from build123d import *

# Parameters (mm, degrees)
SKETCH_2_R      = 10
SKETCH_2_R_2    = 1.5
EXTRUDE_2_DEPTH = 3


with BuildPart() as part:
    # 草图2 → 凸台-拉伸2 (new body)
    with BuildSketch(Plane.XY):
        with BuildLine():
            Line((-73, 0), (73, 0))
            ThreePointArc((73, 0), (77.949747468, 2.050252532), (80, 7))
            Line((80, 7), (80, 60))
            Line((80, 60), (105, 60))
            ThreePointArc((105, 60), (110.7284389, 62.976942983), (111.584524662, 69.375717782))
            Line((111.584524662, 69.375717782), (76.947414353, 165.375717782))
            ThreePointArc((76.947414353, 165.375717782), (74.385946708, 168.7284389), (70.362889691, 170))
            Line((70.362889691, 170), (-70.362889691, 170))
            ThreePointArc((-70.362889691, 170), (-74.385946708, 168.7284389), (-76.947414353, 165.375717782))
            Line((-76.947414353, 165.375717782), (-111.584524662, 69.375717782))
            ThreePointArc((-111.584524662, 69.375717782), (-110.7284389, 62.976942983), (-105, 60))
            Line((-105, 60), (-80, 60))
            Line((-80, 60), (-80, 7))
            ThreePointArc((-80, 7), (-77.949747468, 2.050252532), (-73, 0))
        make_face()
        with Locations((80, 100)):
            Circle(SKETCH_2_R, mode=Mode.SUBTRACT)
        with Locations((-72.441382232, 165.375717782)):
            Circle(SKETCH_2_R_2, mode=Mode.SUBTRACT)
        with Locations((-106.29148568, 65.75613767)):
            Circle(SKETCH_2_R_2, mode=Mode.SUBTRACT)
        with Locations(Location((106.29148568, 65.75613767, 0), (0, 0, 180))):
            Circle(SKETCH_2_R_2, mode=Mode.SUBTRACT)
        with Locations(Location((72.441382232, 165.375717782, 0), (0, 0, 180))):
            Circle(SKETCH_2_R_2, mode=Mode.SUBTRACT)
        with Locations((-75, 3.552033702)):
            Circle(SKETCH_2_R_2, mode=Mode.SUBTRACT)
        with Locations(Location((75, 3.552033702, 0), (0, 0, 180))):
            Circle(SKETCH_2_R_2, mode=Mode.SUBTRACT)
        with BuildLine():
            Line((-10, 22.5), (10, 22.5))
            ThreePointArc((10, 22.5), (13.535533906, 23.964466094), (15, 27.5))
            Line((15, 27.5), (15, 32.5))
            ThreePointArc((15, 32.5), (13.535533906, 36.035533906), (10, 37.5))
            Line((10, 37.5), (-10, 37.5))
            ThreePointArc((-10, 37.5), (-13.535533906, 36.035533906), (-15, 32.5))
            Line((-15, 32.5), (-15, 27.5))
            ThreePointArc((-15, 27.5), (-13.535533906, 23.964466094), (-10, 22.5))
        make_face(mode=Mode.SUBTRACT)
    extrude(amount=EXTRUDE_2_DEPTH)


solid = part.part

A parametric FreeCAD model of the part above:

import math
import FreeCAD as App
import Part
import Sketcher
from FreeCAD import Vector
Q = App.Units.Quantity

doc = App.newDocument("Part")
body = doc.addObject("PartDesign::Body", "Body")

# Sketch on XY plane
sketch1 = body.newObject("Sketcher::SketchObject", "Sketch")
sketch1.AttachmentSupport = (doc.getObject("XY_Plane"), [""])
sketch1.MapMode = "FlatFace"
sketch1.addGeometry(Part.LineSegment(Vector(-73, 0, 0), Vector(73, 0, 0)), False)
sketch1.addGeometry(Part.ArcOfCircle(Part.Circle(Vector(73, 7, 0), Vector(0, 0, 1), 7), math.radians(-90), math.radians(0)), False)
sketch1.addGeometry(Part.LineSegment(Vector(80, 7, 0), Vector(80, 60, 0)), False)
sketch1.addGeometry(Part.LineSegment(Vector(80, 60, 0), Vector(105, 60, 0)), False)
sketch1.addGeometry(Part.ArcOfCircle(Part.Circle(Vector(105, 67, 0), Vector(0, 0, 1), 7), math.radians(-90), math.radians(20)), False)
sketch1.addGeometry(Part.LineSegment(Vector(111.6, 69.4, 0), Vector(76.9, 165.4, 0)), False)
sketch1.addGeometry(Part.ArcOfCircle(Part.Circle(Vector(70.4, 163, 0), Vector(0, 0, 1), 7), math.radians(20), math.radians(90)), False)
sketch1.addGeometry(Part.LineSegment(Vector(70.4, 170, 0), Vector(-70.4, 170, 0)), False)
sketch1.addGeometry(Part.ArcOfCircle(Part.Circle(Vector(-70.4, 163, 0), Vector(0, 0, 1), 7), math.radians(90), math.radians(160)), False)
sketch1.addGeometry(Part.LineSegment(Vector(-76.9, 165.4, 0), Vector(-111.6, 69.4, 0)), False)
sketch1.addGeometry(Part.ArcOfCircle(Part.Circle(Vector(-105, 67, 0), Vector(0, 0, 1), 7), math.radians(160), math.radians(270)), False)
sketch1.addGeometry(Part.LineSegment(Vector(-105, 60, 0), Vector(-80, 60, 0)), False)
sketch1.addGeometry(Part.LineSegment(Vector(-80, 60, 0), Vector(-80, 7, 0)), False)
sketch1.addGeometry(Part.ArcOfCircle(Part.Circle(Vector(-73, 7, 0), Vector(0, 0, 1), 7), math.radians(-180), math.radians(-90)), False)
sketch1.addGeometry(Part.Circle(Vector(-75, 3.6, 0), Vector(0, 0, 1), 1.5), False)
sketch1.addGeometry(Part.Circle(Vector(-106.3, 65.8, 0), Vector(0, 0, 1), 1.5), False)
sketch1.addGeometry(Part.LineSegment(Vector(10, 22.5, 0), Vector(-10, 22.5, 0)), False)
sketch1.addGeometry(Part.ArcOfCircle(Part.Circle(Vector(-10, 27.5, 0), Vector(0, 0, 1), 5), math.radians(180), math.radians(270)), False)
sketch1.addGeometry(Part.LineSegment(Vector(-15, 27.5, 0), Vector(-15, 32.5, 0)), False)
sketch1.addGeometry(Part.ArcOfCircle(Part.Circle(Vector(-10, 32.5, 0), Vector(0, 0, 1), 5), math.radians(90), math.radians(180)), False)
sketch1.addGeometry(Part.LineSegment(Vector(-10, 37.5, 0), Vector(10, 37.5, 0)), False)
sketch1.addGeometry(Part.ArcOfCircle(Part.Circle(Vector(10, 32.5, 0), Vector(0, 0, 1), 5), math.radians(0), math.radians(90)), False)
sketch1.addGeometry(Part.LineSegment(Vector(15, 32.5, 0), Vector(15, 27.5, 0)), False)
sketch1.addGeometry(Part.ArcOfCircle(Part.Circle(Vector(10, 27.5, 0), Vector(0, 0, 1), 5), math.radians(-90), math.radians(0)), False)
sketch1.addGeometry(Part.Circle(Vector(75, 3.6, 0), Vector(0, 0, 1), 1.5), False)
sketch1.addGeometry(Part.Circle(Vector(106.3, 65.8, 0), Vector(0, 0, 1), 1.5), False)
sketch1.addGeometry(Part.Circle(Vector(-72.4, 165.4, 0), Vector(0, 0, 1), 1.5), False)
sketch1.addGeometry(Part.Circle(Vector(80, 100, 0), Vector(0, 0, 1), 10), False)
sketch1.addGeometry(Part.Circle(Vector(72.4, 165.4, 0), Vector(0, 0, 1), 1.5), False)
sketch1.addConstraint(Sketcher.Constraint("Tangent", 0, 2, 1, 1))
sketch1.addConstraint(Sketcher.Constraint("Tangent", 1, 2, 2, 1))
sketch1.addConstraint(Sketcher.Constraint("Coincident", 2, 2, 3, 1))
sketch1.addConstraint(Sketcher.Constraint("Tangent", 3, 2, 4, 1))
sketch1.addConstraint(Sketcher.Constraint("Tangent", 4, 2, 5, 1))
sketch1.addConstraint(Sketcher.Constraint("Tangent", 5, 2, 6, 1))
sketch1.addConstraint(Sketcher.Constraint("Tangent", 6, 2, 7, 1))
sketch1.addConstraint(Sketcher.Constraint("Tangent", 7, 2, 8, 1))
sketch1.addConstraint(Sketcher.Constraint("Tangent", 8, 2, 9, 1))
sketch1.addConstraint(Sketcher.Constraint("Tangent", 9, 2, 10, 1))
sketch1.addConstraint(Sketcher.Constraint("Tangent", 10, 2, 11, 1))
sketch1.addConstraint(Sketcher.Constraint("Coincident", 11, 2, 12, 1))
sketch1.addConstraint(Sketcher.Constraint("Tangent", 12, 2, 13, 1))
sketch1.addConstraint(Sketcher.Constraint("Tangent", 13, 2, 0, 1))
sketch1.addConstraint(Sketcher.Constraint("Tangent", 16, 2, 17, 2))
sketch1.addConstraint(Sketcher.Constraint("Tangent", 17, 1, 18, 1))
sketch1.addConstraint(Sketcher.Constraint("Tangent", 18, 2, 19, 2))
sketch1.addConstraint(Sketcher.Constraint("Tangent", 19, 1, 20, 1))
sketch1.addConstraint(Sketcher.Constraint("Tangent", 20, 2, 21, 2))
sketch1.addConstraint(Sketcher.Constraint("Tangent", 21, 1, 22, 1))
sketch1.addConstraint(Sketcher.Constraint("Tangent", 22, 2, 23, 2))
sketch1.addConstraint(Sketcher.Constraint("Tangent", 23, 1, 16, 1))
sketch1.addConstraint(Sketcher.Constraint("Horizontal", 0))
sketch1.addConstraint(Sketcher.Constraint("Vertical", 2))
sketch1.addConstraint(Sketcher.Constraint("Horizontal", 3))
sketch1.addConstraint(Sketcher.Constraint("Horizontal", 7))
sketch1.addConstraint(Sketcher.Constraint("Horizontal", 11))
sketch1.addConstraint(Sketcher.Constraint("Vertical", 12))
sketch1.addConstraint(Sketcher.Constraint("Horizontal", 16))
sketch1.addConstraint(Sketcher.Constraint("Vertical", 18))
sketch1.addConstraint(Sketcher.Constraint("Horizontal", 20))
sketch1.addConstraint(Sketcher.Constraint("Vertical", 22))
sketch1.addConstraint(Sketcher.Constraint("Equal", 1, 4))
sketch1.addConstraint(Sketcher.Constraint("Equal", 4, 6))
sketch1.addConstraint(Sketcher.Constraint("Equal", 6, 8))
sketch1.addConstraint(Sketcher.Constraint("Equal", 8, 10))
sketch1.addConstraint(Sketcher.Constraint("Equal", 10, 13))
sketch1.addConstraint(Sketcher.Constraint("Equal", 14, 15))
sketch1.addConstraint(Sketcher.Constraint("Equal", 17, 19))
sketch1.addConstraint(Sketcher.Constraint("Equal", 19, 21))
sketch1.addConstraint(Sketcher.Constraint("Equal", 21, 23))
sketch1.addConstraint(Sketcher.Constraint("Equal", 15, 24))
sketch1.addConstraint(Sketcher.Constraint("Equal", 24, 25))
sketch1.addConstraint(Sketcher.Constraint("Equal", 25, 26))
sketch1.addConstraint(Sketcher.Constraint("Equal", 26, 28))
sketch1.addConstraint(Sketcher.Constraint("Symmetric", 0, 2, 13, 2, -1, 1))
sketch1.addConstraint(Sketcher.Constraint("Symmetric", 4, 3, 10, 3, -2))
sketch1.addConstraint(Sketcher.Constraint("Symmetric", 14, 3, 24, 3, -2))
sketch1.addConstraint(Sketcher.Constraint("Symmetric", 15, 3, 25, 3, -2))
sketch1.addConstraint(Sketcher.Constraint("Symmetric", 26, 3, 28, 3, -2))
sketch1.addConstraint(Sketcher.Constraint("Horizontal", 28, 3, 5, 2))
sketch1.addConstraint(Sketcher.Constraint("Horizontal", 5, 2, 8, 2))
sketch1.addConstraint(Sketcher.Constraint("Vertical", 27, 3, 1, 2))
sketch1.addConstraint(Sketcher.Constraint("Diameter", 14, Q("3 mm")))
sketch1.addConstraint(Sketcher.Constraint("Diameter", 27, Q("20 mm")))
sketch1.addConstraint(Sketcher.Constraint("Radius", 1, Q("7 mm")))
sketch1.addConstraint(Sketcher.Constraint("Radius", 17, Q("5 mm")))
sketch1.addConstraint(Sketcher.Constraint("DistanceX", 0, 1, 0, 2, Q("146 mm")))
sketch1.addConstraint(Sketcher.Constraint("DistanceX", 3, 1, 3, 2, Q("25 mm")))
sketch1.addConstraint(Sketcher.Constraint("DistanceX", 16, 2, 16, 1, Q("20 mm")))
sketch1.addConstraint(Sketcher.Constraint("DistanceY", 2, 1, 2, 2, Q("53 mm")))
sketch1.addConstraint(Sketcher.Constraint("DistanceY", 18, 1, 18, 2, Q("5 mm")))
sketch1.addConstraint(Sketcher.Constraint("DistanceY", -1, 1, 6, 3, Q("163 mm")))
sketch1.addConstraint(Sketcher.Constraint("DistanceX", 14, 3, -1, 1, Q("75 mm")))
sketch1.addConstraint(Sketcher.Constraint("DistanceX", 17, 3, -1, 1, Q("10 mm")))
sketch1.addConstraint(Sketcher.Constraint("DistanceY", -1, 1, 27, 3, Q("100 mm")))
sketch1.addConstraint(Sketcher.Constraint("DistanceY", -1, 1, 17, 3, Q("27.5 mm")))
sketch1.addConstraint(Sketcher.Constraint("DistanceX", 7, 2, 7, 1, Q("140.725779 mm")))
sketch1.addConstraint(Sketcher.Constraint("DistanceY", 15, 3, 26, 3, Q("99.61958 mm")))
sketch1.addConstraint(Sketcher.Constraint("DistanceX", 26, 3, 6, 3, Q("142.804272 mm")))
sketch1.addConstraint(Sketcher.Constraint("DistanceX", 25, 3, 4, 2, Q("5.293039 mm")))
sketch1.addConstraint(Sketcher.Constraint("DistanceY", -1, 1, 14, 3, Q("3.552034 mm")))
pad1 = body.newObject("PartDesign::Pad", "Pad")
pad1.Profile = sketch1
pad1.Length = 3

doc.recompute()
